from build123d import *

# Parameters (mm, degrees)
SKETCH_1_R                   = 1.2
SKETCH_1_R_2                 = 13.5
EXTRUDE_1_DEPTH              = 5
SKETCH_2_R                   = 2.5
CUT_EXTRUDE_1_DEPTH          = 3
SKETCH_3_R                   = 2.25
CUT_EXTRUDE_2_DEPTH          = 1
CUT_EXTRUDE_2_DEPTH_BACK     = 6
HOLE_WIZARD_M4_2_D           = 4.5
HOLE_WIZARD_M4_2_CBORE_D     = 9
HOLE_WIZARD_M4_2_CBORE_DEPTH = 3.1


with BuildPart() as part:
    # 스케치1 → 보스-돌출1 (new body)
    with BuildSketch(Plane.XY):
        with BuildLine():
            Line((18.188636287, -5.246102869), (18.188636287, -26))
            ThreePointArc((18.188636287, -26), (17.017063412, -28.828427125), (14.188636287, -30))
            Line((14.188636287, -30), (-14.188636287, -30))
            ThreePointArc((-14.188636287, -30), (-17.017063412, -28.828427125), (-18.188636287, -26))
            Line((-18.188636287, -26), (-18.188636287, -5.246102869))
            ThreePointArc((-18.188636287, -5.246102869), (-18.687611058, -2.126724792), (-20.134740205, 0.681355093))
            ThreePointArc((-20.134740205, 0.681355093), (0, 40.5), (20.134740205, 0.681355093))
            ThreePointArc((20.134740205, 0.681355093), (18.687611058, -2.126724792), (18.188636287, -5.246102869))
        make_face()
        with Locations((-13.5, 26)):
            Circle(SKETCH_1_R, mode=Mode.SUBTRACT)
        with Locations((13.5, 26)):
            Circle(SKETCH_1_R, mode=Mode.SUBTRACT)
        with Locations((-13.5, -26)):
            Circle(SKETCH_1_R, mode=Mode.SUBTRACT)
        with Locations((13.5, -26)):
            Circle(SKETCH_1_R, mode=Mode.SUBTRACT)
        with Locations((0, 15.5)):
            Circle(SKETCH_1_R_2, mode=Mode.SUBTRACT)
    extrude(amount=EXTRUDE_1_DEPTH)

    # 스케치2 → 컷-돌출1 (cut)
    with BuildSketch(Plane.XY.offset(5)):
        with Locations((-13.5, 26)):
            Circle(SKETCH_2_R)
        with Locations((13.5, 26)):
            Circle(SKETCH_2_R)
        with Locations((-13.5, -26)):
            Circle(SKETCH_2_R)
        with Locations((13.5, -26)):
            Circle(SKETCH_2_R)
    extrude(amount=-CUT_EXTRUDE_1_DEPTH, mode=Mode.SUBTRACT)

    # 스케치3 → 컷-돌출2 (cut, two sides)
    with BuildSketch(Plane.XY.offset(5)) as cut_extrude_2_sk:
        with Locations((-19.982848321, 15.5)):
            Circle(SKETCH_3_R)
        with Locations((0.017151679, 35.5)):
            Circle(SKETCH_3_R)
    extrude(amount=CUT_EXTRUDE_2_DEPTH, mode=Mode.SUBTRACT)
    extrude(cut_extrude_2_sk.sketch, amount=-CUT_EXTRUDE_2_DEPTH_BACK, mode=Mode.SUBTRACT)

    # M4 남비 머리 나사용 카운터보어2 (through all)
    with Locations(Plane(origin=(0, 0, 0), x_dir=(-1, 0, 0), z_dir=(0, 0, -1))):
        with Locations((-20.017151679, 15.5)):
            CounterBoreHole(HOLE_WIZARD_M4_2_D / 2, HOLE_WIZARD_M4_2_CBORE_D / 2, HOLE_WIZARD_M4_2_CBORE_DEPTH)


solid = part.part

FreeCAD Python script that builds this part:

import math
import FreeCAD as App
import Part
import Sketcher
from FreeCAD import Vector

doc = App.newDocument("Part")
body = doc.addObject("PartDesign::Body", "Body")

sketch1 = body.newObject("Sketcher::SketchObject", "Sketch")
sketch1.AttachmentSupport = (doc.getObject("XY_Plane"), [""])
sketch1.MapMode = "FlatFace"
sketch1.addGeometry([
    Part.LineSegment(Vector(18.188636, -26, 0), Vector(18.188636, -5.246103, 0)),
    Part.ArcOfCircle(Part.Circle(Vector(28.188636, -5.246103, 0), Vector(0, 0, 1), 10), math.radians(143.647899), math.radians(180)),
    Part.ArcOfCircle(Part.Circle(Vector(0, 15.5, 0), Vector(0, 0, 1), 25), math.radians(-36.352101), math.radians(216.352101)),
    Part.ArcOfCircle(Part.Circle(Vector(-28.188636, -5.246103, 0), Vector(0, 0, 1), 10), math.radians(0), math.radians(36.352101)),
    Part.LineSegment(Vector(-18.188636, -5.246103, 0), Vector(-18.188636, -26, 0)),
    Part.ArcOfCircle(Part.Circle(Vector(-14.188636, -26, 0), Vector(0, 0, 1), 4), math.radians(180), math.radians(270)),
    Part.LineSegment(Vector(-14.188636, -30, 0), Vector(14.188636, -30, 0)),
    Part.ArcOfCircle(Part.Circle(Vector(14.188636, -26, 0), Vector(0, 0, 1), 4), math.radians(-90), math.radians(0)),
    Part.Circle(Vector(13.5, -26, 0), Vector(0, 0, 1), 1.2),
    Part.Circle(Vector(-13.5, -26, 0), Vector(0, 0, 1), 1.2),
    Part.Circle(Vector(13.5, 26, 0), Vector(0, 0, 1), 1.2),
    Part.Circle(Vector(0, 15.5, 0), Vector(0, 0, 1), 13.5),
    Part.Circle(Vector(-13.5, 26, 0), Vector(0, 0, 1), 1.2),
], False)
sketch1.addConstraint([
    Sketcher.Constraint("Tangent", 0, 2, 1, 2),
    Sketcher.Constraint("Tangent", 1, 1, 2, 1),
    Sketcher.Constraint("Tangent", 2, 2, 3, 2),
    Sketcher.Constraint("Tangent", 3, 1, 4, 1),
    Sketcher.Constraint("Tangent", 4, 2, 5, 1),
    Sketcher.Constraint("Tangent", 5, 2, 6, 1),
    Sketcher.Constraint("Tangent", 6, 2, 7, 1),
    Sketcher.Constraint("Tangent", 7, 2, 0, 1),
    Sketcher.Constraint("Vertical", 0),
    Sketcher.Constraint("Vertical", 4),
    Sketcher.Constraint("Horizontal", 6),
    Sketcher.Constraint("Coincident", 11, 3, 2, 3),
    Sketcher.Constraint("Equal", 1, 3),
    Sketcher.Constraint("Equal", 5, 7),
    Sketcher.Constraint("Equal", 8, 9),
    Sketcher.Constraint("Equal", 9, 10),
    Sketcher.Constraint("Equal", 10, 12),
    Sketcher.Constraint("Symmetric", 9, 3, 10, 3, -1, 1),
    Sketcher.Constraint("Symmetric", 8, 3, 12, 3, -1, 1),
    Sketcher.Constraint("Symmetric", 1, 3, 3, 3, -2),
    Sketcher.Constraint("Symmetric", 8, 3, 9, 3, -2),
    Sketcher.Constraint("Horizontal", 7, 3, 8, 3),
    Sketcher.Constraint("Diameter", 11, 27.0),
    Sketcher.Constraint("Radius", 1, 10.0),
    Sketcher.Constraint("Radius", 2, 25.0),
    Sketcher.Constraint("Radius", 5, 4.0),
    Sketcher.Constraint("Diameter", 8, 2.4),
    Sketcher.Constraint("DistanceY", 5, 3, -1, 1, 26.0),
    Sketcher.Constraint("DistanceX", 9, 3, 8, 3, 27.0),
    Sketcher.Constraint("DistanceY", -1, 1, 2, 3, 15.5),
    Sketcher.Constraint("DistanceX", 6, 1, 6, 2, 28.377273),
])
pad1 = body.newObject("PartDesign::Pad", "Pad")
pad1.Profile = sketch1
pad1.Length = 5

sketch2 = body.newObject("Sketcher::SketchObject", "Sketch001")
sketch2.AttachmentSupport = (doc.getObject("XY_Plane"), [""])
sketch2.MapMode = "FlatFace"
sketch2.AttachmentOffset = App.Placement(Vector(0, 0, 5), App.Rotation())
sketch2.addGeometry([
    Part.Circle(Vector(-13.5, 26, 0), Vector(0, 0, 1), 2.5),
    Part.Circle(Vector(13.5, 26, 0), Vector(0, 0, 1), 2.5),
    Part.Circle(Vector(-13.5, -26, 0), Vector(0, 0, 1), 2.5),
    Part.Circle(Vector(13.5, -26, 0), Vector(0, 0, 1), 2.5),
], False)
sketch2.addConstraint([
    Sketcher.Constraint("Equal", 0, 1),
    Sketcher.Constraint("Equal", 1, 2),
    Sketcher.Constraint("Equal", 2, 3),
    Sketcher.Constraint("Symmetric", 1, 3, 2, 3, -1, 1),
    Sketcher.Constraint("Symmetric", 0, 3, 3, 3, -1, 1),
    Sketcher.Constraint("Symmetric", 0, 3, 1, 3, -2),
    Sketcher.Constraint("Diameter", 0, 5.0),
    Sketcher.Constraint("DistanceY", -1, 1, 0, 3, 26.0),
    Sketcher.Constraint("DistanceX", 0, 3, 1, 3, 27.0),
])
pocket1 = body.newObject("PartDesign::Pocket", "Pocket")
pocket1.Profile = sketch2
pocket1.Length = 3

sketch3 = body.newObject("Sketcher::SketchObject", "Sketch002")
sketch3.AttachmentSupport = (doc.getObject("XY_Plane"), [""])
sketch3.MapMode = "FlatFace"
sketch3.AttachmentOffset = App.Placement(Vector(0, 0, 5), App.Rotation())
sketch3.addGeometry([
    Part.Circle(Vector(-19.982848, 15.5, 0), Vector(0, 0, 1), 2.25),
    Part.Circle(Vector(0.017152, 35.5, 0), Vector(0, 0, 1), 2.25),
], False)
sketch3.addConstraint([
    Sketcher.Constraint("Equal", 0, 1),
    Sketcher.Constraint("Diameter", 0, 4.5),
    Sketcher.Constraint("DistanceX", 0, 3, 1, 3, 20.0),
    Sketcher.Constraint("DistanceY", 0, 3, 1, 3, 20.0),
    Sketcher.Constraint("DistanceY", -1, 1, 0, 3, 15.5),
    Sketcher.Constraint("DistanceX", 0, 3, -1, 1, 19.982848),
])
pocket2 = body.newObject("PartDesign::Pocket", "Pocket001")
pocket2.Profile = sketch3
pocket2.Type = "ThroughAll"
pocket2.Midplane = True

sketch4 = body.newObject("Sketcher::SketchObject", "Sketch003")
sketch4.AttachmentSupport = (doc.getObject("XY_Plane"), [""])
sketch4.MapMode = "FlatFace"
sketch4.addGeometry(Part.Circle(Vector(20.017152, 15.5, 0), Vector(0, 0, 1), 2.25), False)
sketch4.addConstraint([
    Sketcher.Constraint("Diameter", 0, 4.5),
    Sketcher.Constraint("DistanceY", -1, 1, 0, 3, 15.5),
    Sketcher.Constraint("DistanceX", -1, 1, 0, 3, 20.017152),
])
doc.recompute()
hole = body.newObject("PartDesign::Hole", "Hole")
hole.Profile = sketch4
hole.ThreadType = "None"
hole.Diameter = 4.5
hole.DepthType = "ThroughAll"
hole.HoleCutType = "Counterbore"
hole.HoleCutDiameter = 9
hole.HoleCutDepth = 3.1
hole.Reversed = True

doc.recompute()
